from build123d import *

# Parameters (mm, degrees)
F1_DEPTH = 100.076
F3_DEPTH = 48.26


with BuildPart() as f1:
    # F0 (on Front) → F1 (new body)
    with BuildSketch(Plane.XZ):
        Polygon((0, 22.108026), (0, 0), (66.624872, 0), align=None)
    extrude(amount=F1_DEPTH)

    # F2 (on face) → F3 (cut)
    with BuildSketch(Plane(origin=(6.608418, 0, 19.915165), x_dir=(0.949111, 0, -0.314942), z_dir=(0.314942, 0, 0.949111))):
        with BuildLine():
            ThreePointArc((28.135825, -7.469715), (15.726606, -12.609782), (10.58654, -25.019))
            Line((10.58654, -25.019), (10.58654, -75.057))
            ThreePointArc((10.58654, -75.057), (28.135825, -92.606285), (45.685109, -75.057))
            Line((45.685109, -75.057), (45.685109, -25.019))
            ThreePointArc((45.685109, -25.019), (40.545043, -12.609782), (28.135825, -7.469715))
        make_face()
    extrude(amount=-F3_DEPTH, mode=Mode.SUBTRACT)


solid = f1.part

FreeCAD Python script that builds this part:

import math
import FreeCAD as App
import Part
import Sketcher
from FreeCAD import Vector
Q = App.Units.Quantity

doc = App.newDocument("Part")
body = doc.addObject("PartDesign::Body", "Body")

sketch1 = body.newObject("Sketcher::SketchObject", "Sketch")
sketch1.AttachmentSupport = (doc.getObject("XZ_Plane"), [""])
sketch1.MapMode = "FlatFace"
sketch1.addGeometry(Part.LineSegment(Vector(0, 22, 0), Vector(0, 0, 0)), False)
sketch1.addGeometry(Part.LineSegment(Vector(0, 0, 0), Vector(67, 0, 0)), False)
sketch1.addGeometry(Part.LineSegment(Vector(67, 0, 0), Vector(0, 22, 0)), False)
sketch1.addConstraint(Sketcher.Constraint("Coincident", 0, 2, 1, 1))
sketch1.addConstraint(Sketcher.Constraint("Coincident", 1, 2, 2, 1))
sketch1.addConstraint(Sketcher.Constraint("Coincident", 2, 2, 0, 1))
sketch1.addConstraint(Sketcher.Constraint("Vertical", 0))
sketch1.addConstraint(Sketcher.Constraint("Horizontal", 1))
sketch1.addConstraint(Sketcher.Constraint("Coincident", 0, 2, -1, 1))
sketch1.addConstraint(Sketcher.Constraint("DistanceX", 1, 1, 1, 2, Q("66.624872 mm")))
sketch1.addConstraint(Sketcher.Constraint("Distance", 2, Q("70.197139 mm")))
pad1 = body.newObject("PartDesign::Pad", "Pad")
pad1.Profile = sketch1
pad1.Length = Q("3.94 in")

sketch2 = body.newObject("Sketcher::SketchObject", "Sketch001")
sketch2.Placement = App.Placement(Vector(6.608418, 0, 19.915165), App.Rotation(Vector(0.949110927, 0, -0.314941976), Vector(0, 1, 0), Vector(0.314941976, 0, 0.949110927), "ZXY"))
sketch2.addGeometry(Part.ArcOfCircle(Part.Circle(Vector(28, -25, 0), Vector(0, 0, 1), 18), math.radians(90), math.radians(180)), False)
sketch2.addGeometry(Part.LineSegment(Vector(11, -25, 0), Vector(11, -75, 0)), False)
sketch2.addGeometry(Part.ArcOfCircle(Part.Circle(Vector(28, -75, 0), Vector(0, 0, 1), 18), math.radians(180), math.radians(360)), False)
sketch2.addGeometry(Part.LineSegment(Vector(46, -75, 0), Vector(46, -25, 0)), False)
sketch2.addGeometry(Part.ArcOfCircle(Part.Circle(Vector(28, -25, 0), Vector(0, 0, 1), 18), math.radians(0), math.radians(90)), False)
sketch2.addConstraint(Sketcher.Constraint("Tangent", 0, 2, 1, 1))
sketch2.addConstraint(Sketcher.Constraint("Tangent", 1, 2, 2, 1))
sketch2.addConstraint(Sketcher.Constraint("Tangent", 2, 2, 3, 1))
sketch2.addConstraint(Sketcher.Constraint("Tangent", 3, 2, 4, 1))
sketch2.addConstraint(Sketcher.Constraint("Tangent", 4, 2, 0, 1))
sketch2.addConstraint(Sketcher.Constraint("Vertical", 1))
sketch2.addConstraint(Sketcher.Constraint("Vertical", 3))
sketch2.addConstraint(Sketcher.Constraint("Equal", 0, 2))
sketch2.addConstraint(Sketcher.Constraint("Vertical", 2, 3, 4, 2))
sketch2.addConstraint(Sketcher.Constraint("DistanceY", 1, 2, 1, 1, Q("1.97 in")))
sketch2.addConstraint(Sketcher.Constraint("DistanceY", 0, 3, -1, 1, Q("0.985 in")))
sketch2.addConstraint(Sketcher.Constraint("Radius", 0, Q("17.549285 mm")))
sketch2.addConstraint(Sketcher.Constraint("DistanceX", -1, 1, 0, 2, Q("10.58654 mm")))
pocket1 = body.newObject("PartDesign::Pocket", "Pocket")
pocket1.Profile = sketch2
pocket1.Length = Q("1.9 in")

doc.recompute()
